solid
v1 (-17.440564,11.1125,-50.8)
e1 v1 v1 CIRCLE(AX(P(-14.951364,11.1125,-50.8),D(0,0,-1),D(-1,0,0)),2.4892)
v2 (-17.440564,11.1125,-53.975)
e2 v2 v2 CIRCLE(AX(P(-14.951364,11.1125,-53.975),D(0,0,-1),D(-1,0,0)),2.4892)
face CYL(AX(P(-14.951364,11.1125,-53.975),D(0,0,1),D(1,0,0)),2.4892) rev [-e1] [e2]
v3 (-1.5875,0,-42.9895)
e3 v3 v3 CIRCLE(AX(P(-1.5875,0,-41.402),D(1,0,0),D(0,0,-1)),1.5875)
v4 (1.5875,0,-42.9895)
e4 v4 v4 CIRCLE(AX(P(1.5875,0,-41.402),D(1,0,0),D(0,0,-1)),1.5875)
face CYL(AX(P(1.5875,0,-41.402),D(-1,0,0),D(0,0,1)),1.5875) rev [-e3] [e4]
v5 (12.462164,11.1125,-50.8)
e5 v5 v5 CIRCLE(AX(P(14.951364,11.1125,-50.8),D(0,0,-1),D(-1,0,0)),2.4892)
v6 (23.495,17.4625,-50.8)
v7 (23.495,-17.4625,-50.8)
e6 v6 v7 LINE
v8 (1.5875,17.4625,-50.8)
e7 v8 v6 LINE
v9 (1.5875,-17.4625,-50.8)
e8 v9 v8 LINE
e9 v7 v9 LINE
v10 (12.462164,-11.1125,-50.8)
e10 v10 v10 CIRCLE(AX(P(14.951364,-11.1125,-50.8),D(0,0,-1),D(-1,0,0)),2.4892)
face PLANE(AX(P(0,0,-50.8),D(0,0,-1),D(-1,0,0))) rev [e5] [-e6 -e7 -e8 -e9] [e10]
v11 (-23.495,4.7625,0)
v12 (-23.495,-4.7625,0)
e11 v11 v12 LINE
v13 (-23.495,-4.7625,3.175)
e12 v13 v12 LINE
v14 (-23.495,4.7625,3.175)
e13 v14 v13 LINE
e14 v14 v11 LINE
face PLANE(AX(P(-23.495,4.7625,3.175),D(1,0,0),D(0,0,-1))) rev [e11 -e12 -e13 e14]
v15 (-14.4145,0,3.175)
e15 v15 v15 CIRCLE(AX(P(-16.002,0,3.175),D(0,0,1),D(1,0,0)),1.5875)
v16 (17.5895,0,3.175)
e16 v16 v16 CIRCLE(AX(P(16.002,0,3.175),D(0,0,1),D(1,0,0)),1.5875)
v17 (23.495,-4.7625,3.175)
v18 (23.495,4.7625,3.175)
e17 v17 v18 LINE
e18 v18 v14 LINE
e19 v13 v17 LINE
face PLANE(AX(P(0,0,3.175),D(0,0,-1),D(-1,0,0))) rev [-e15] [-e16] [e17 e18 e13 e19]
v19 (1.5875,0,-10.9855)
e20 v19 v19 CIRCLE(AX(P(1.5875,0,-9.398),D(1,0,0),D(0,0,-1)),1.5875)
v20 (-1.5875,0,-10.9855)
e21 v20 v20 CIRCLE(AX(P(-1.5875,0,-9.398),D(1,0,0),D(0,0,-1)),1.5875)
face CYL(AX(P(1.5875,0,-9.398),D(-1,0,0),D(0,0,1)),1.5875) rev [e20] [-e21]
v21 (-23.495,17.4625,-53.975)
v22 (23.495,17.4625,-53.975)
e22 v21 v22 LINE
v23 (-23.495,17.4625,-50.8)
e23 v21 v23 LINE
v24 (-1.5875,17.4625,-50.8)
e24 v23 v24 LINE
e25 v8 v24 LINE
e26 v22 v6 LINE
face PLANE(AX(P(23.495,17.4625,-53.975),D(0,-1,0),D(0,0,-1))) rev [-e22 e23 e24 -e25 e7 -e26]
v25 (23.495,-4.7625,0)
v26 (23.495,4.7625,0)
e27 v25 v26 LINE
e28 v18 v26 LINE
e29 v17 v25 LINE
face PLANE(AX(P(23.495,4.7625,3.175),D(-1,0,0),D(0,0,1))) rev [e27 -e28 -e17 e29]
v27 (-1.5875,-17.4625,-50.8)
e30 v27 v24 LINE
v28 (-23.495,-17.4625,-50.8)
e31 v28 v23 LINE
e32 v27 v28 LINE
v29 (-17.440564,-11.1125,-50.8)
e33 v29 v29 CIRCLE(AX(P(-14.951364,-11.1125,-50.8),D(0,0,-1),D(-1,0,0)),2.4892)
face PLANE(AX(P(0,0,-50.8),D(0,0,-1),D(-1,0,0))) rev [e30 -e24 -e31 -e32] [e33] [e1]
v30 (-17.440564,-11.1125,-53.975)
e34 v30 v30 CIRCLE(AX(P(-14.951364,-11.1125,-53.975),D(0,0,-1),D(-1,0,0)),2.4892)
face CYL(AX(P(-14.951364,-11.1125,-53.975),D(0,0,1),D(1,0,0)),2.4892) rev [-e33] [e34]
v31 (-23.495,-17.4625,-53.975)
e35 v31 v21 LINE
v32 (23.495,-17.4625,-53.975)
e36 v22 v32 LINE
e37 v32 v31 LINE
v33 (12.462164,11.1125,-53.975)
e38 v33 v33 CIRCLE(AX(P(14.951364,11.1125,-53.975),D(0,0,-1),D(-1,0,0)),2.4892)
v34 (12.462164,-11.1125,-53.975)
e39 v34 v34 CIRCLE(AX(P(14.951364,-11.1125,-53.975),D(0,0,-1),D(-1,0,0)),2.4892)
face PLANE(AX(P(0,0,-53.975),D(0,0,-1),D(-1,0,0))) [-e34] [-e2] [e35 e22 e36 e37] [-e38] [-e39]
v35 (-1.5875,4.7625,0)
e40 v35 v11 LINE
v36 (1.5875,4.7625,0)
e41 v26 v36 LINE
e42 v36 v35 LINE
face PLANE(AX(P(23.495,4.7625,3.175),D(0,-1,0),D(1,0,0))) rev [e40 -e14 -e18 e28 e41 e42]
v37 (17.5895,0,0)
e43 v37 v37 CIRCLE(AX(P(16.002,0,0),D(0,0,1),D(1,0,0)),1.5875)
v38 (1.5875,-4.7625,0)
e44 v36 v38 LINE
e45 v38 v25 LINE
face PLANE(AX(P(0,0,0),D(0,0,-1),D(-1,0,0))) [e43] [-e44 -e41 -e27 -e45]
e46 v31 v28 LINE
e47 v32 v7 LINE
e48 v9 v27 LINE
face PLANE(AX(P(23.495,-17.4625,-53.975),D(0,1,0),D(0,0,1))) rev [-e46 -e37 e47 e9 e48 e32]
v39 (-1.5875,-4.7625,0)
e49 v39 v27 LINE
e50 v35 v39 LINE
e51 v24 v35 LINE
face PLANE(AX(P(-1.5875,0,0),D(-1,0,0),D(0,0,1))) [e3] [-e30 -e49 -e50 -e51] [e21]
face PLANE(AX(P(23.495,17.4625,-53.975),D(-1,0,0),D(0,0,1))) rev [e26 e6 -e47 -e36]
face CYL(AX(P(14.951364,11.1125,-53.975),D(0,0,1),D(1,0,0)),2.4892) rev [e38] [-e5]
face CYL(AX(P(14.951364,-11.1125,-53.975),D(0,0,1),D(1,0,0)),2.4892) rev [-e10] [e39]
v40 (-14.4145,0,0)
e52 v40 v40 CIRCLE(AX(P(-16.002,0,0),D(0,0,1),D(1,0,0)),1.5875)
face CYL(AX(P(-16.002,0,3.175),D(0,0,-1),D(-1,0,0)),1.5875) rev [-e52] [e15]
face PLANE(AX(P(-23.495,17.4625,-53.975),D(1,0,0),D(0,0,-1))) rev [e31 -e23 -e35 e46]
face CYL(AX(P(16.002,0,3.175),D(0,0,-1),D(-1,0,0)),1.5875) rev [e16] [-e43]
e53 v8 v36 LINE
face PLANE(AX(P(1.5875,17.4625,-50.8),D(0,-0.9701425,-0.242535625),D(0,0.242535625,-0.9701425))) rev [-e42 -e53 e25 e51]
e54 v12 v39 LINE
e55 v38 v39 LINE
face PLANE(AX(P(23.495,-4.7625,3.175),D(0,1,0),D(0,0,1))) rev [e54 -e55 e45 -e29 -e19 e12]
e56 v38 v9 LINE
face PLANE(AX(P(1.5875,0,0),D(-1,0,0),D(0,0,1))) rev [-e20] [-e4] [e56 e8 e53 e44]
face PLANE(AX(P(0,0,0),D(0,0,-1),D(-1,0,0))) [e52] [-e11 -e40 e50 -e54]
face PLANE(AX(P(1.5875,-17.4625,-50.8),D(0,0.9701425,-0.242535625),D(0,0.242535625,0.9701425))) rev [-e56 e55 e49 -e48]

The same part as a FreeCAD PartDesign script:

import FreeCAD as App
import Part
import Sketcher
Q = App.Units.Quantity

doc = App.newDocument("Part")
body = doc.addObject("PartDesign::Body", "Body")

# Sketch on XY plane
sketch1 = body.newObject("Sketcher::SketchObject", "Sketch")
sketch1.AttachmentSupport = (doc.getObject("XY_Plane"), [""])
sketch1.MapMode = "FlatFace"
sketch1.addGeometry([
    Part.LineSegment(App.Vector(-23.5, 4.8, 0), App.Vector(-23.5, -4.8, 0)),  # 0
    Part.LineSegment(App.Vector(-23.5, -4.8, 0), App.Vector(23.5, -4.8, 0)),  # 1
    Part.LineSegment(App.Vector(23.5, -4.8, 0), App.Vector(23.5, 4.8, 0)),  # 2
    Part.LineSegment(App.Vector(23.5, 4.8, 0), App.Vector(-23.5, 4.8, 0)),  # 3
    Part.Circle(App.Vector(-16, 0, 0), App.Vector(0, 0, 1), 1.6),  # 4
    Part.Circle(App.Vector(16, 0, 0), App.Vector(0, 0, 1), 1.6),  # 5
], False)
sketch1.addConstraint([
    Sketcher.Constraint("Coincident", 0, 2, 1, 1),
    Sketcher.Constraint("Coincident", 1, 2, 2, 1),
    Sketcher.Constraint("Coincident", 2, 2, 3, 1),
    Sketcher.Constraint("Coincident", 3, 2, 0, 1),
    Sketcher.Constraint("Vertical", 0),
    Sketcher.Constraint("Horizontal", 1),
    Sketcher.Constraint("Vertical", 2),
    Sketcher.Constraint("Horizontal", 3),
    Sketcher.Constraint("Equal", 4, 5),
    Sketcher.Constraint("Symmetric", 4, 3, 5, 3, -1, 1),
    Sketcher.Constraint("Symmetric", 0, 2, 2, 2, -1, 1),
    Sketcher.Constraint("PointOnObject", 4, 3, -1),
    Sketcher.Constraint("Diameter", 4, Q("0.125 in")),
    Sketcher.Constraint("DistanceX", 1, 1, 1, 2, Q("1.85 in")),
    Sketcher.Constraint("DistanceY", 0, 2, 0, 1, Q("0.375 in")),
    Sketcher.Constraint("DistanceX", 4, 3, -1, 1, Q("0.63 in")),
])
pad1 = body.newObject("PartDesign::Pad", "Pad")
pad1.Profile = sketch1
pad1.Length = Q("0.125 in")

# Sketch on YZ plane
sketch2 = body.newObject("Sketcher::SketchObject", "Sketch001")
sketch2.AttachmentSupport = (doc.getObject("YZ_Plane"), [""])
sketch2.MapMode = "FlatFace"
sketch2.addGeometry([
    Part.LineSegment(App.Vector(17.5, -50.8, 0), App.Vector(4.8, 0, 0)),  # 0
    Part.LineSegment(App.Vector(4.8, 0, 0), App.Vector(-4.8, 0, 0)),  # 1
    Part.LineSegment(App.Vector(-4.8, 0, 0), App.Vector(-17.5, -50.8, 0)),  # 2
    Part.LineSegment(App.Vector(-17.5, -50.8, 0), App.Vector(17.5, -50.8, 0)),  # 3
    Part.Circle(App.Vector(0, -9.4, 0), App.Vector(0, 0, 1), 1.6),  # 4
    Part.Circle(App.Vector(0, -41.4, 0), App.Vector(0, 0, 1), 1.6),  # 5
], False)
sketch2.addConstraint([
    Sketcher.Constraint("Coincident", 0, 2, 1, 1),
    Sketcher.Constraint("Coincident", 1, 2, 2, 1),
    Sketcher.Constraint("Coincident", 2, 2, 3, 1),
    Sketcher.Constraint("Coincident", 3, 2, 0, 1),
    Sketcher.Constraint("Horizontal", 1),
    Sketcher.Constraint("Horizontal", 3),
    Sketcher.Constraint("Equal", 4, 5),
    Sketcher.Constraint("Symmetric", 0, 2, 1, 2, -1, 1),
    Sketcher.Constraint("PointOnObject", 4, 3, -2),
    Sketcher.Constraint("PointOnObject", 5, 3, -2),
    Sketcher.Constraint("Equal", 0, 2),
    Sketcher.Constraint("Diameter", 4, Q("0.125 in")),
    Sketcher.Constraint("DistanceY", 2, 2, -1, 1, Q("2 in")),
    Sketcher.Constraint("DistanceX", 2, 2, 1, 2, Q("0.5 in")),
    Sketcher.Constraint("DistanceX", 1, 2, 1, 1, Q("0.375 in")),
    Sketcher.Constraint("DistanceY", 4, 3, -1, 1, Q("0.37 in")),
    Sketcher.Constraint("DistanceY", 5, 3, -1, 1, Q("1.63 in")),
])
pad2 = body.newObject("PartDesign::Pad", "Pad001")
pad2.Profile = sketch2
pad2.Length = Q("0.125 in")
pad2.Midplane = True

# Sketch on XY plane
sketch3 = body.newObject("Sketcher::SketchObject", "Sketch002")
sketch3.AttachmentSupport = (doc.getObject("XY_Plane"), [""])
sketch3.MapMode = "FlatFace"
sketch3.AttachmentOffset = App.Placement(App.Vector(0, 0, -2 * 25.4), App.Rotation())
sketch3.addGeometry([
    Part.LineSegment(App.Vector(23.5, 17.5, 0), App.Vector(23.5, -17.5, 0)),  # 0
    Part.LineSegment(App.Vector(23.5, -17.5, 0), App.Vector(-23.5, -17.5, 0)),  # 1
    Part.LineSegment(App.Vector(-23.5, -17.5, 0), App.Vector(-23.5, 17.5, 0)),  # 2
    Part.LineSegment(App.Vector(-23.5, 17.5, 0), App.Vector(23.5, 17.5, 0)),  # 3
    Part.Circle(App.Vector(15, -11.1, 0), App.Vector(0, 0, 1), 2.5),  # 4
    Part.Circle(App.Vector(-15, -11.1, 0), App.Vector(0, 0, 1), 2.5),  # 5
    Part.Circle(App.Vector(15, 11.1, 0), App.Vector(0, 0, 1), 2.5),  # 6
    Part.Circle(App.Vector(-15, 11.1, 0), App.Vector(0, 0, 1), 2.5),  # 7
], False)
sketch3.addConstraint([
    Sketcher.Constraint("Coincident", 0, 2, 1, 1),
    Sketcher.Constraint("Coincident", 1, 2, 2, 1),
    Sketcher.Constraint("Coincident", 2, 2, 3, 1),
    Sketcher.Constraint("Coincident", 3, 2, 0, 1),
    Sketcher.Constraint("Vertical", 0),
    Sketcher.Constraint("Horizontal", 1),
    Sketcher.Constraint("Vertical", 2),
    Sketcher.Constraint("Horizontal", 3),
    Sketcher.Constraint("Equal", 4, 5),
    Sketcher.Constraint("Equal", 5, 6),
    Sketcher.Constraint("Equal", 6, 7),
    Sketcher.Constraint("Symmetric", 5, 3, 6, 3, -1, 1),
    Sketcher.Constraint("Symmetric", 4, 3, 7, 3, -1, 1),
    Sketcher.Constraint("Symmetric", 0, 2, 2, 2, -1, 1),
    Sketcher.Constraint("Symmetric", 4, 3, 5, 3, -2),
    Sketcher.Constraint("Diameter", 4, Q("0.196 in")),
    Sketcher.Constraint("DistanceX", 1, 2, 1, 1, Q("1.85 in")),
    Sketcher.Constraint("DistanceY", 0, 2, 0, 1, Q("1.375 in")),
    Sketcher.Constraint("DistanceY", 0, 2, 4, 3, Q("0.25 in")),
    Sketcher.Constraint("DistanceX", -1, 1, 4, 3, Q("14.951364 mm")),
])
pad3 = body.newObject("PartDesign::Pad", "Pad002")
pad3.Profile = sketch3
pad3.Length = Q("0.125 in")
pad3.Reversed = True

doc.recompute()
